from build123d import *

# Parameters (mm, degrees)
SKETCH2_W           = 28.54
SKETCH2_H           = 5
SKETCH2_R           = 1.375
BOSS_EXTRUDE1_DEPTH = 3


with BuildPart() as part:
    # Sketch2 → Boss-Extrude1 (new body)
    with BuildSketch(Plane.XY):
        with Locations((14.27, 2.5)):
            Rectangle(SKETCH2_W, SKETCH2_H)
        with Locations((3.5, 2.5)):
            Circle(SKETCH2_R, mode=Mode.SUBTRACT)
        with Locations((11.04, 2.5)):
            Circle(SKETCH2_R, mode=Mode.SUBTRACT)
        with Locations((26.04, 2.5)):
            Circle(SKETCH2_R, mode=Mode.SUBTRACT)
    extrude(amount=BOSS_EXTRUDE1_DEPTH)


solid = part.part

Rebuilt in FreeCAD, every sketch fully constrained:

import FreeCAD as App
import Part
import Sketcher
from FreeCAD import Vector

doc = App.newDocument("Part")
body = doc.addObject("PartDesign::Body", "Body")

sketch1 = body.newObject("Sketcher::SketchObject", "Sketch")
sketch1.AttachmentSupport = (doc.getObject("XY_Plane"), [""])
sketch1.MapMode = "FlatFace"
sketch1.addGeometry(Part.LineSegment(Vector(0, 5, 0), Vector(0, 0, 0)), False)
sketch1.addGeometry(Part.LineSegment(Vector(0, 0, 0), Vector(28.54, 0, 0)), False)
sketch1.addGeometry(Part.LineSegment(Vector(28.54, 0, 0), Vector(28.54, 5, 0)), False)
sketch1.addGeometry(Part.LineSegment(Vector(28.54, 5, 0), Vector(0, 5, 0)), False)
sketch1.addGeometry(Part.Circle(Vector(3.5, 2.5, 0), Vector(0, 0, 1), 1.375), False)
sketch1.addGeometry(Part.Circle(Vector(11.04, 2.5, 0), Vector(0, 0, 1), 1.375), False)
sketch1.addGeometry(Part.Circle(Vector(26.04, 2.5, 0), Vector(0, 0, 1), 1.375), False)
sketch1.addConstraint(Sketcher.Constraint("Coincident", 0, 2, 1, 1))
sketch1.addConstraint(Sketcher.Constraint("Coincident", 1, 2, 2, 1))
sketch1.addConstraint(Sketcher.Constraint("Coincident", 2, 2, 3, 1))
sketch1.addConstraint(Sketcher.Constraint("Coincident", 3, 2, 0, 1))
sketch1.addConstraint(Sketcher.Constraint("Vertical", 0))
sketch1.addConstraint(Sketcher.Constraint("Horizontal", 1))
sketch1.addConstraint(Sketcher.Constraint("Vertical", 2))
sketch1.addConstraint(Sketcher.Constraint("Horizontal", 3))
sketch1.addConstraint(Sketcher.Constraint("Coincident", 0, 2, -1, 1))
sketch1.addConstraint(Sketcher.Constraint("Equal", 4, 5))
sketch1.addConstraint(Sketcher.Constraint("Equal", 5, 6))
sketch1.addConstraint(Sketcher.Constraint("Horizontal", 4, 3, 5, 3))
sketch1.addConstraint(Sketcher.Constraint("Horizontal", 5, 3, 6, 3))
sketch1.addConstraint(Sketcher.Constraint("Diameter", 4, 2.75))
sketch1.addConstraint(Sketcher.Constraint("DistanceY", 0, 2, 0, 1, 5.0))
sketch1.addConstraint(Sketcher.Constraint("DistanceX", 5, 3, 6, 3, 15.0))
sketch1.addConstraint(Sketcher.Constraint("DistanceX", 1, 1, 1, 2, 28.54))
sketch1.addConstraint(Sketcher.Constraint("DistanceX", -1, 1, 4, 3, 3.5))
sketch1.addConstraint(Sketcher.Constraint("DistanceY", -1, 1, 4, 3, 2.5))
sketch1.addConstraint(Sketcher.Constraint("DistanceX", 6, 3, 1, 2, 2.5))
pad1 = body.newObject("PartDesign::Pad", "Pad")
pad1.Profile = sketch1
pad1.Length = 3

doc.recompute()
